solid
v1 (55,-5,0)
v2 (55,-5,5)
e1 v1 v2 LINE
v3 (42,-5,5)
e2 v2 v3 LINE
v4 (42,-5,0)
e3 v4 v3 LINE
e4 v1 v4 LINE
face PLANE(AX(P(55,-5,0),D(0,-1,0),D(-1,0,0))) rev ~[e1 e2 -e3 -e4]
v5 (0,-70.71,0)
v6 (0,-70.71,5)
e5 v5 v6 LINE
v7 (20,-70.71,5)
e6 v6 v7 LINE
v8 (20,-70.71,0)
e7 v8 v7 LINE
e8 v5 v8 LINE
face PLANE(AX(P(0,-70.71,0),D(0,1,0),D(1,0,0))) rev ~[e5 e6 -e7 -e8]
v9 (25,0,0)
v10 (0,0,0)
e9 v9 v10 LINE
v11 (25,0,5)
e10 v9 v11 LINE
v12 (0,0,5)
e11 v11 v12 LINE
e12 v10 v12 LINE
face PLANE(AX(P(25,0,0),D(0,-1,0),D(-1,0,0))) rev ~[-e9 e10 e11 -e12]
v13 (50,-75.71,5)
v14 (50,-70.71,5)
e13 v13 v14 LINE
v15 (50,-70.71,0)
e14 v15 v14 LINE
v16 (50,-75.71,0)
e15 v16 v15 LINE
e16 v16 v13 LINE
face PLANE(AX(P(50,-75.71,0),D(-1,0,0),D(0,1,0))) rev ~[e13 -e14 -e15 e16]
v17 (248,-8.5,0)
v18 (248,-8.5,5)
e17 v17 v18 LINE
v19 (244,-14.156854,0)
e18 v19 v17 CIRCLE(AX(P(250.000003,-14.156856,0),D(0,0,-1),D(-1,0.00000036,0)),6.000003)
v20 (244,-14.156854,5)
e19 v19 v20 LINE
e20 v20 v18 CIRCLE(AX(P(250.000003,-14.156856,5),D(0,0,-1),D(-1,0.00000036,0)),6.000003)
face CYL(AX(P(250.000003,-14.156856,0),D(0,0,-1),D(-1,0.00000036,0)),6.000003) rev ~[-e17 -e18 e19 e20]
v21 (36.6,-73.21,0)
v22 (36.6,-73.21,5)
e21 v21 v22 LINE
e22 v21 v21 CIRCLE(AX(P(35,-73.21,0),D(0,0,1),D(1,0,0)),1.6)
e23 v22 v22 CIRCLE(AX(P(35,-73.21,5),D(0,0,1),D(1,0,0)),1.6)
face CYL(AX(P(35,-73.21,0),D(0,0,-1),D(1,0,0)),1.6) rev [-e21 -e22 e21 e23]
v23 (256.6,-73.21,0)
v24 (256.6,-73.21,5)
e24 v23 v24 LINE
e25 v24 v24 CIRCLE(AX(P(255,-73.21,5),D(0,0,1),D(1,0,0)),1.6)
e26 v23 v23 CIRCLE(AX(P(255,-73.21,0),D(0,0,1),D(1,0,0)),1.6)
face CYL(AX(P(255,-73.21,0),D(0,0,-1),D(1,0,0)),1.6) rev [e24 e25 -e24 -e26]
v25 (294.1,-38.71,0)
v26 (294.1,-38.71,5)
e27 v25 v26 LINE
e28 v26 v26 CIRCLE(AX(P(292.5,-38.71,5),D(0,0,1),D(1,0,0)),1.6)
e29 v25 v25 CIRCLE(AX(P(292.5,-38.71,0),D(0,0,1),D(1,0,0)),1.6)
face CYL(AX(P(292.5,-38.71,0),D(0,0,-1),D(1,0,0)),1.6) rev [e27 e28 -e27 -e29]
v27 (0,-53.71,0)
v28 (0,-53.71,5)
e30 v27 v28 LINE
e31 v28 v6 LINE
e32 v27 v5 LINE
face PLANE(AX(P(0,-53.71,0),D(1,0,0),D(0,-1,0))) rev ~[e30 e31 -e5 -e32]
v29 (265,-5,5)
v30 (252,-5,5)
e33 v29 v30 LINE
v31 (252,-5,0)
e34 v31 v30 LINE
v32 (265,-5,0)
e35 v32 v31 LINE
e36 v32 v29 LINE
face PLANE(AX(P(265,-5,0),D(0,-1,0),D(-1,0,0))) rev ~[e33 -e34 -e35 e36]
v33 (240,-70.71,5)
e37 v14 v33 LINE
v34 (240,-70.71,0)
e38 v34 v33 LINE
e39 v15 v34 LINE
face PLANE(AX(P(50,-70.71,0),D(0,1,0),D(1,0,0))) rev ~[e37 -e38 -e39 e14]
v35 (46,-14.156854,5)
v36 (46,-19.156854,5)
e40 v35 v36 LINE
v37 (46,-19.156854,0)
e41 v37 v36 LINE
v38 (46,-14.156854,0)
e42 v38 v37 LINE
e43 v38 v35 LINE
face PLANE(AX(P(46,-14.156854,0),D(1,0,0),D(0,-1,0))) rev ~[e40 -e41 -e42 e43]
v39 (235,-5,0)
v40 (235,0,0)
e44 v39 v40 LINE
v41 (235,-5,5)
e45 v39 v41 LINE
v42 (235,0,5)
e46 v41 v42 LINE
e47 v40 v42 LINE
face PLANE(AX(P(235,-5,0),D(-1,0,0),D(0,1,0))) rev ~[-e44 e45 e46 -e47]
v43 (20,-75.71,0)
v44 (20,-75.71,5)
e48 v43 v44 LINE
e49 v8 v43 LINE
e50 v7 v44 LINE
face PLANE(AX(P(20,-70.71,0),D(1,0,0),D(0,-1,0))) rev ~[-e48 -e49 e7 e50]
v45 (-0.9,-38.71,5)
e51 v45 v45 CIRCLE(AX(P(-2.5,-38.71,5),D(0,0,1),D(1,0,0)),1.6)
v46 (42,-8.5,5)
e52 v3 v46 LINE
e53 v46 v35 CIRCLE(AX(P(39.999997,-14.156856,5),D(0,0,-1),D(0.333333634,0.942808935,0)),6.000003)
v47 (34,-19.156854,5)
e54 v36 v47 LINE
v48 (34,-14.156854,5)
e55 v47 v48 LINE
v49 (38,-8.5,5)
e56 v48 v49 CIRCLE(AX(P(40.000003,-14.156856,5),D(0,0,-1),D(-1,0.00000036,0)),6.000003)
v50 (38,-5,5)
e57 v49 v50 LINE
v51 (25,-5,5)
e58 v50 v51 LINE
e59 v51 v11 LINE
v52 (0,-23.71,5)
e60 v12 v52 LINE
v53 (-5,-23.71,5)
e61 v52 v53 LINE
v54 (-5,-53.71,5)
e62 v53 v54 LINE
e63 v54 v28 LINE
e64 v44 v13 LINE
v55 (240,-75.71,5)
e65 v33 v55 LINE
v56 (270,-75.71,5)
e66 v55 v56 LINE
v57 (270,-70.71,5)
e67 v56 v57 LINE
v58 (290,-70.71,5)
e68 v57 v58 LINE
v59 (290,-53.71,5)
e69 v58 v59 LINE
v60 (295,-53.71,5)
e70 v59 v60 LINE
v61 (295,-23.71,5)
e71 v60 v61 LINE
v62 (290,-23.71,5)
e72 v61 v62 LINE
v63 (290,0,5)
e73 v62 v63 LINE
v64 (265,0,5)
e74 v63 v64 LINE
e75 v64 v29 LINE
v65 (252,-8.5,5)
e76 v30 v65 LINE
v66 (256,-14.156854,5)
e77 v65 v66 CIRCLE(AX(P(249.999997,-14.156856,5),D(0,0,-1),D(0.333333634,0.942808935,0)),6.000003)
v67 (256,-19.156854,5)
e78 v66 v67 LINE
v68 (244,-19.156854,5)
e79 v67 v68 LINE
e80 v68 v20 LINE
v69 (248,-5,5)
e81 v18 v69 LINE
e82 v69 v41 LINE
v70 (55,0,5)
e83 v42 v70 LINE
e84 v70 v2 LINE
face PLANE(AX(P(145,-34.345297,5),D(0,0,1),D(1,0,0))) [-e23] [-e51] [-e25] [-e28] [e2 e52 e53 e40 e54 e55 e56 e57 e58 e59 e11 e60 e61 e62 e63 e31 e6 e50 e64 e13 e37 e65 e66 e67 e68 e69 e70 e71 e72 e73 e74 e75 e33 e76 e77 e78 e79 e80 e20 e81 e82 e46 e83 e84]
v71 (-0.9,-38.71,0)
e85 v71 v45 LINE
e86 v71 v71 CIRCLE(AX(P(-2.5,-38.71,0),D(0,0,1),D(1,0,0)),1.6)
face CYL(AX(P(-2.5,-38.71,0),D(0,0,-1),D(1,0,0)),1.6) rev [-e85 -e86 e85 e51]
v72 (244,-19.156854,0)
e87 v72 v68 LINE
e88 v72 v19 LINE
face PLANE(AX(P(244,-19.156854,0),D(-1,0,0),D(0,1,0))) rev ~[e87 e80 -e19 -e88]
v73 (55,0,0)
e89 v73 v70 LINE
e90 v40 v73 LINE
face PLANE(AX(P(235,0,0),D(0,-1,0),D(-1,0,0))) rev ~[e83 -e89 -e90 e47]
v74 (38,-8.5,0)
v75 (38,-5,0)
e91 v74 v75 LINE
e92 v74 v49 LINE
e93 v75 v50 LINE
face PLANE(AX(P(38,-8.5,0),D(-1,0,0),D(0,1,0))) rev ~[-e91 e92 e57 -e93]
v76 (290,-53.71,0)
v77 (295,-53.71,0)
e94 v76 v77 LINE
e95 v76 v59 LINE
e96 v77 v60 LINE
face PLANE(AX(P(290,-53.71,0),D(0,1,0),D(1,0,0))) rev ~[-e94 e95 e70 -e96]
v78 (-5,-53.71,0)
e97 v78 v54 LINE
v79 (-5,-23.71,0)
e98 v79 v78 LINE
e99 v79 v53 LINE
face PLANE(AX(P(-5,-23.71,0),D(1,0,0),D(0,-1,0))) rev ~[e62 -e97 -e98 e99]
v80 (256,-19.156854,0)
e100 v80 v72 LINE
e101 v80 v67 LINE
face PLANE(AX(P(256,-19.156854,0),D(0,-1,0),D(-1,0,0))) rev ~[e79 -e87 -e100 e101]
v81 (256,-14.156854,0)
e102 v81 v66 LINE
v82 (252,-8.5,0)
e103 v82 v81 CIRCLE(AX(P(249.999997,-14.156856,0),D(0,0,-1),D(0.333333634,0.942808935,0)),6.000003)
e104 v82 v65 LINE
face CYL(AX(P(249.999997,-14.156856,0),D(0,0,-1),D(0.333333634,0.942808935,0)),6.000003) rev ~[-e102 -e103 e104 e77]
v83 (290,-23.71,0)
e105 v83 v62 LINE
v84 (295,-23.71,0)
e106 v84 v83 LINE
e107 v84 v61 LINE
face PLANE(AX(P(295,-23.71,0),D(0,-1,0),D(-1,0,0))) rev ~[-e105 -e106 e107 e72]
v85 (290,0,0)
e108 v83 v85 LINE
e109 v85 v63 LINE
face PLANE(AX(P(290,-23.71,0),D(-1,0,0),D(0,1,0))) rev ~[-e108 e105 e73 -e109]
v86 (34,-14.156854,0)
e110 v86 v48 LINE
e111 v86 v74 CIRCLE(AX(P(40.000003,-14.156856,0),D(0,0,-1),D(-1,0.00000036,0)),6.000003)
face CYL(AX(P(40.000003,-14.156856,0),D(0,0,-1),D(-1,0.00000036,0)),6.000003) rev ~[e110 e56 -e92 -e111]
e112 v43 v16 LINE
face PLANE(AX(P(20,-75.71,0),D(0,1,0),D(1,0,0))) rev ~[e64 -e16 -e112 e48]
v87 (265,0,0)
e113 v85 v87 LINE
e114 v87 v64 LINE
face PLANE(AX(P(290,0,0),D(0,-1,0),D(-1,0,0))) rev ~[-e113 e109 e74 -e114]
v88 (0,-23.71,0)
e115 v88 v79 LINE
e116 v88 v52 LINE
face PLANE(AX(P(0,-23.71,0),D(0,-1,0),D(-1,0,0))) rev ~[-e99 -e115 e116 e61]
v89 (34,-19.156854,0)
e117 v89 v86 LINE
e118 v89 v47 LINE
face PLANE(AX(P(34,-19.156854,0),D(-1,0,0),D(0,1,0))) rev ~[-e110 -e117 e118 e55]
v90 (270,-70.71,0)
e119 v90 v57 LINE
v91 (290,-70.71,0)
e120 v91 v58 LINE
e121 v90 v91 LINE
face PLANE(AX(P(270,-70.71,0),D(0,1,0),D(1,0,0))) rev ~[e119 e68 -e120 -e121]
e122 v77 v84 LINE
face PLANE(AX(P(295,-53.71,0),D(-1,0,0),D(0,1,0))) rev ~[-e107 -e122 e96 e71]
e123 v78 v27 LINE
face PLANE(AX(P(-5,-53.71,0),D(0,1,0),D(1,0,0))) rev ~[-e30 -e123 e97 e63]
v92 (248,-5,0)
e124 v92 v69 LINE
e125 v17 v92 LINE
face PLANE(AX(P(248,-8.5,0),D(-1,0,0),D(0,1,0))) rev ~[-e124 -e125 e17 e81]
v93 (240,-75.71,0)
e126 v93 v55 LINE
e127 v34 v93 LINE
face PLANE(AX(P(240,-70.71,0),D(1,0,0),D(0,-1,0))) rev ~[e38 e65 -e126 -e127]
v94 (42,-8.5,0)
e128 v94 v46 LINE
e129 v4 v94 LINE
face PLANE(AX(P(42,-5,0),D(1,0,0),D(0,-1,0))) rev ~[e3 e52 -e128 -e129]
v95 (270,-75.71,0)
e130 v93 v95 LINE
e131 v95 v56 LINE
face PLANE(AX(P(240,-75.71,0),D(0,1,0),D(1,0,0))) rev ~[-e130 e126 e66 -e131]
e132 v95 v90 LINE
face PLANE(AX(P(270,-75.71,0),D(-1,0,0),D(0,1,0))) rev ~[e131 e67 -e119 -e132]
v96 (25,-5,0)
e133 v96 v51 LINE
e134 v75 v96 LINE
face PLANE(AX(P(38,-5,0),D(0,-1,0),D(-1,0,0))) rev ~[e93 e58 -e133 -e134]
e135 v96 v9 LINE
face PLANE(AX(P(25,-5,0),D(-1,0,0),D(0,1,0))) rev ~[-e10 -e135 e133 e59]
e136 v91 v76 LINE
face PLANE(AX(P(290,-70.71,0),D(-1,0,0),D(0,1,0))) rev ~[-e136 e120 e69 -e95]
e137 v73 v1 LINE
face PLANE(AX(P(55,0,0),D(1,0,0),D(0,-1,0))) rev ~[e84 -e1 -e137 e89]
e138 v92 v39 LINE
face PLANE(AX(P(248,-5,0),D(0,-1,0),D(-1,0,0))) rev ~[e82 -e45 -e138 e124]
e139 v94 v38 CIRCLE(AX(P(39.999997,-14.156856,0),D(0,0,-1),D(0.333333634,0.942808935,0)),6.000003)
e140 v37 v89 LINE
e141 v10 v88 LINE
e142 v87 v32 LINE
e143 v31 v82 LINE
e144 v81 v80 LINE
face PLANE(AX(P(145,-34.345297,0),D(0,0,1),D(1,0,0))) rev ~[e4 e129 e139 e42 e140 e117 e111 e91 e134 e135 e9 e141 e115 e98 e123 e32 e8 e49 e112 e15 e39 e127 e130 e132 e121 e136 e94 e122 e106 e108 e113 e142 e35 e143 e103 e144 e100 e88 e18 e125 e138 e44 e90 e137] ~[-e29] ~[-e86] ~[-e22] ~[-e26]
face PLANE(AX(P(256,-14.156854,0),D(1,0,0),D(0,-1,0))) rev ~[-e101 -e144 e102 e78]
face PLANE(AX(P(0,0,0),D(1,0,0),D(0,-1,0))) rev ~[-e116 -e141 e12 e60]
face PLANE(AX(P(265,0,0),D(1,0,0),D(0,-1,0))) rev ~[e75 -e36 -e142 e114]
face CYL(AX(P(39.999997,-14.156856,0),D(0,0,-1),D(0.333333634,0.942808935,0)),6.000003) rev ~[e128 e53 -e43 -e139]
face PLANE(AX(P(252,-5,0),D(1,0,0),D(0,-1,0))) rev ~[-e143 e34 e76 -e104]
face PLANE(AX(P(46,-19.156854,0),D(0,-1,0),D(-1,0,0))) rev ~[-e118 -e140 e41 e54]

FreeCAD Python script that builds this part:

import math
import FreeCAD as App
import Part
import Sketcher

V = App.Vector
Q = App.Units.Quantity

doc = App.newDocument("Part")
params = doc.addObject("Spreadsheet::Sheet", "Params")
for row, (alias, value) in enumerate([
    ("sketch1_diameter", "3.2 mm"),
    ("sketch1_width", "25 mm"),
    ("sketch1_width2", "5 mm"),
    ("sketch1_width3", "20 mm"),
    ("sketch1_width4", "30 mm"),
    ("pad1_length", "5 mm"),
], start=1):
    params.set(f"A{row}", alias)
    params.set(f"B{row}", "=" + value)
    params.setAlias(f"B{row}", alias)

body = doc.addObject("PartDesign::Body", "Body")

sketch1 = doc.addObject("Sketcher::SketchObject", "Sketch")
body.addObject(sketch1)
sketch1.AttachmentSupport = (doc.XY_Plane, [""])
sketch1.MapMode = "FlatFace"
sketch1.addGeometry([
    Part.LineSegment(V(25, 0, 0), V(0, 0, 0)),
    Part.LineSegment(V(0, 0, 0), V(0, -23.71, 0)),
    Part.LineSegment(V(0, -23.71, 0), V(-5, -23.71, 0)),
    Part.LineSegment(V(-5, -23.71, 0), V(-5, -53.71, 0)),
    Part.LineSegment(V(-5, -53.71, 0), V(0, -53.71, 0)),
    Part.LineSegment(V(0, -53.71, 0), V(0, -70.71, 0)),
    Part.LineSegment(V(0, -70.71, 0), V(20, -70.71, 0)),
    Part.LineSegment(V(20, -70.71, 0), V(20, -75.71, 0)),
    Part.LineSegment(V(20, -75.71, 0), V(50, -75.71, 0)),
    Part.LineSegment(V(50, -75.71, 0), V(50, -70.71, 0)),
    Part.LineSegment(V(50, -70.71, 0), V(240, -70.71, 0)),
    Part.LineSegment(V(240, -70.71, 0), V(240, -75.71, 0)),
    Part.LineSegment(V(240, -75.71, 0), V(270, -75.71, 0)),
    Part.LineSegment(V(270, -75.71, 0), V(270, -70.71, 0)),
    Part.LineSegment(V(270, -70.71, 0), V(290, -70.71, 0)),
    Part.LineSegment(V(290, -70.71, 0), V(290, -53.71, 0)),
    Part.LineSegment(V(290, -53.71, 0), V(295, -53.71, 0)),
    Part.LineSegment(V(295, -53.71, 0), V(295, -23.71, 0)),
    Part.LineSegment(V(295, -23.71, 0), V(290, -23.71, 0)),
    Part.LineSegment(V(290, -23.71, 0), V(290, 0, 0)),
    Part.LineSegment(V(290, 0, 0), V(265, 0, 0)),
    Part.LineSegment(V(265, 0, 0), V(265, -5, 0)),
    Part.LineSegment(V(265, -5, 0), V(252, -5, 0)),
    Part.LineSegment(V(252, -5, 0), V(252, -8.5, 0)),
    Part.ArcOfCircle(Part.Circle(V(249.999997, -14.156856, 0), V(0, 0, 1), 6.000003), math.radians(0.000021), math.radians(70.528761)),
    Part.LineSegment(V(256, -14.156854, 0), V(256, -19.156854, 0)),
    Part.LineSegment(V(256, -19.156854, 0), V(244, -19.156854, 0)),
    Part.LineSegment(V(244, -19.156854, 0), V(244, -14.156854, 0)),
    Part.ArcOfCircle(Part.Circle(V(250.000003, -14.156856, 0), V(0, 0, 1), 6.000003), math.radians(109.471239), math.radians(179.999979)),
    Part.LineSegment(V(248, -8.5, 0), V(248, -5, 0)),
    Part.LineSegment(V(248, -5, 0), V(235, -5, 0)),
    Part.LineSegment(V(235, -5, 0), V(235, 0, 0)),
    Part.LineSegment(V(235, 0, 0), V(55, 0, 0)),
    Part.LineSegment(V(55, 0, 0), V(55, -5, 0)),
    Part.LineSegment(V(55, -5, 0), V(42, -5, 0)),
    Part.LineSegment(V(42, -5, 0), V(42, -8.5, 0)),
    Part.ArcOfCircle(Part.Circle(V(39.999997, -14.156856, 0), V(0, 0, 1), 6.000003), math.radians(0.000021), math.radians(70.528761)),
    Part.LineSegment(V(46, -14.156854, 0), V(46, -19.156854, 0)),
    Part.LineSegment(V(46, -19.156854, 0), V(34, -19.156854, 0)),
    Part.LineSegment(V(34, -19.156854, 0), V(34, -14.156854, 0)),
    Part.ArcOfCircle(Part.Circle(V(40.000003, -14.156856, 0), V(0, 0, 1), 6.000003), math.radians(109.471239), math.radians(179.999979)),
    Part.LineSegment(V(38, -8.5, 0), V(38, -5, 0)),
    Part.LineSegment(V(38, -5, 0), V(25, -5, 0)),
    Part.LineSegment(V(25, -5, 0), V(25, 0, 0)),
    Part.Circle(V(35, -73.21, 0), V(0, 0, 1), 1.6),
    Part.Circle(V(255, -73.21, 0), V(0, 0, 1), 1.6),
    Part.Circle(V(-2.5, -38.71, 0), V(0, 0, 1), 1.6),
    Part.Circle(V(292.5, -38.71, 0), V(0, 0, 1), 1.6),
], False)
sketch1.addConstraint([
    Sketcher.Constraint("Coincident", 0, 2, 1, 1),
    Sketcher.Constraint("Coincident", 1, 2, 2, 1),
    Sketcher.Constraint("Coincident", 2, 2, 3, 1),
    Sketcher.Constraint("Coincident", 3, 2, 4, 1),
    Sketcher.Constraint("Coincident", 4, 2, 5, 1),
    Sketcher.Constraint("Coincident", 5, 2, 6, 1),
    Sketcher.Constraint("Coincident", 6, 2, 7, 1),
    Sketcher.Constraint("Coincident", 7, 2, 8, 1),
    Sketcher.Constraint("Coincident", 8, 2, 9, 1),
    Sketcher.Constraint("Coincident", 9, 2, 10, 1),
    Sketcher.Constraint("Coincident", 10, 2, 11, 1),
    Sketcher.Constraint("Coincident", 11, 2, 12, 1),
    Sketcher.Constraint("Coincident", 12, 2, 13, 1),
    Sketcher.Constraint("Coincident", 13, 2, 14, 1),
    Sketcher.Constraint("Coincident", 14, 2, 15, 1),
    Sketcher.Constraint("Coincident", 15, 2, 16, 1),
    Sketcher.Constraint("Coincident", 16, 2, 17, 1),
    Sketcher.Constraint("Coincident", 17, 2, 18, 1),
    Sketcher.Constraint("Coincident", 18, 2, 19, 1),
    Sketcher.Constraint("Coincident", 19, 2, 20, 1),
    Sketcher.Constraint("Coincident", 20, 2, 21, 1),
    Sketcher.Constraint("Coincident", 21, 2, 22, 1),
    Sketcher.Constraint("Coincident", 22, 2, 23, 1),
    Sketcher.Constraint("Coincident", 23, 2, 24, 2),
    Sketcher.Constraint("Tangent", 24, 1, 25, 1),
    Sketcher.Constraint("Coincident", 25, 2, 26, 1),
    Sketcher.Constraint("Coincident", 26, 2, 27, 1),
    Sketcher.Constraint("Tangent", 27, 2, 28, 2),
    Sketcher.Constraint("Coincident", 28, 1, 29, 1),
    Sketcher.Constraint("Coincident", 29, 2, 30, 1),
    Sketcher.Constraint("Coincident", 30, 2, 31, 1),
    Sketcher.Constraint("Coincident", 31, 2, 32, 1),
    Sketcher.Constraint("Coincident", 32, 2, 33, 1),
    Sketcher.Constraint("Coincident", 33, 2, 34, 1),
    Sketcher.Constraint("Coincident", 34, 2, 35, 1),
    Sketcher.Constraint("Coincident", 35, 2, 36, 2),
    Sketcher.Constraint("Tangent", 36, 1, 37, 1),
    Sketcher.Constraint("Coincident", 37, 2, 38, 1),
    Sketcher.Constraint("Coincident", 38, 2, 39, 1),
    Sketcher.Constraint("Tangent", 39, 2, 40, 2),
    Sketcher.Constraint("Coincident", 40, 1, 41, 1),
    Sketcher.Constraint("Coincident", 41, 2, 42, 1),
    Sketcher.Constraint("Coincident", 42, 2, 43, 1),
    Sketcher.Constraint("Coincident", 43, 2, 0, 1),
    Sketcher.Constraint("Horizontal", 0),
    Sketcher.Constraint("Vertical", 1),
    Sketcher.Constraint("Horizontal", 2),
    Sketcher.Constraint("Vertical", 3),
    Sketcher.Constraint("Horizontal", 4),
    Sketcher.Constraint("Vertical", 5),
    Sketcher.Constraint("Horizontal", 6),
    Sketcher.Constraint("Vertical", 7),
    Sketcher.Constraint("Horizontal", 8),
    Sketcher.Constraint("Vertical", 9),
    Sketcher.Constraint("Horizontal", 10),
    Sketcher.Constraint("Vertical", 11),
    Sketcher.Constraint("Horizontal", 12),
    Sketcher.Constraint("Vertical", 13),
    Sketcher.Constraint("Horizontal", 14),
    Sketcher.Constraint("Vertical", 15),
    Sketcher.Constraint("Horizontal", 16),
    Sketcher.Constraint("Vertical", 17),
    Sketcher.Constraint("Horizontal", 18),
    Sketcher.Constraint("Vertical", 19),
    Sketcher.Constraint("Horizontal", 20),
    Sketcher.Constraint("Vertical", 21),
    Sketcher.Constraint("Horizontal", 22),
    Sketcher.Constraint("Vertical", 23),
    Sketcher.Constraint("Vertical", 25),
    Sketcher.Constraint("Horizontal", 26),
    Sketcher.Constraint("Vertical", 27),
    Sketcher.Constraint("Vertical", 29),
    Sketcher.Constraint("Horizontal", 30),
    Sketcher.Constraint("Vertical", 31),
    Sketcher.Constraint("Horizontal", 32),
    Sketcher.Constraint("Vertical", 33),
    Sketcher.Constraint("Horizontal", 34),
    Sketcher.Constraint("Vertical", 35),
    Sketcher.Constraint("Vertical", 37),
    Sketcher.Constraint("Horizontal", 38),
    Sketcher.Constraint("Vertical", 39),
    Sketcher.Constraint("Vertical", 41),
    Sketcher.Constraint("Horizontal", 42),
    Sketcher.Constraint("Vertical", 43),
    Sketcher.Constraint("Coincident", 0, 2, -1, 1),
    Sketcher.Constraint("Coincident", 28, 3, 24, 3),
    Sketcher.Constraint("Coincident", 40, 3, 36, 3),
    Sketcher.Constraint("Equal", 24, 28),
    Sketcher.Constraint("Equal", 28, 36),
    Sketcher.Constraint("Equal", 36, 40),
    Sketcher.Constraint("Equal", 44, 45),
    Sketcher.Constraint("Equal", 45, 46),
    Sketcher.Constraint("Equal", 46, 47),
    Sketcher.Constraint("PointOnObject", 4, 2, -2),
    Sketcher.Constraint("PointOnObject", 19, 2, -1),
    Sketcher.Constraint("PointOnObject", 31, 2, -1),
    Sketcher.Constraint("Horizontal", 28, 3, 36, 3),
    Sketcher.Constraint("Horizontal", 44, 3, 45, 3),
    Sketcher.Constraint("Horizontal", 46, 3, 47, 3),
    Sketcher.Constraint("Horizontal", 6, 2, 9, 2),
    Sketcher.Constraint("Horizontal", 8, 2, 11, 2),
    Sketcher.Constraint("Horizontal", 10, 2, 13, 2),
    Sketcher.Constraint("Horizontal", 4, 2, 15, 2),
    Sketcher.Constraint("Horizontal", 2, 2, 17, 2),
    Sketcher.Constraint("Horizontal", 23, 2, 28, 1),
    Sketcher.Constraint("Horizontal", 22, 2, 29, 2),
    Sketcher.Constraint("Horizontal", 30, 2, 33, 2),
    Sketcher.Constraint("Horizontal", 28, 1, 35, 2),
    Sketcher.Constraint("Horizontal", 26, 2, 37, 2),
    Sketcher.Constraint("Horizontal", 35, 2, 40, 1),
    Sketcher.Constraint("Horizontal", 34, 2, 41, 2),
    Sketcher.Constraint("Vertical", 15, 2, 18, 2),
    Sketcher.Constraint("Equal", 8, 12),
    Sketcher.Constraint("Equal", 6, 14),
    Sketcher.Constraint("Equal", 4, 16),
    Sketcher.Constraint("Equal", 0, 20),
    Sketcher.Constraint("Equal", 22, 30),
    Sketcher.Constraint("Equal", 30, 34),
    Sketcher.Constraint("Equal", 34, 42),
    Sketcher.Constraint("Equal", 12, 3),
    Sketcher.Constraint("Equal", 18, 7),
    Sketcher.Constraint("Equal", 13, 21),
    Sketcher.Constraint("Equal", 21, 25),
    Sketcher.Constraint("Diameter", 44, Q("3.2 mm")),
    Sketcher.Constraint("DistanceX", 0, 2, 0, 1, Q("25 mm")),
    Sketcher.Constraint("DistanceX", 2, 2, 2, 1, Q("5 mm")),
    Sketcher.Constraint("DistanceX", 6, 1, 6, 2, Q("20 mm")),
    Sketcher.Constraint("DistanceX", 8, 1, 8, 2, Q("30 mm")),
    Sketcher.Constraint("DistanceX", 10, 1, 10, 2, Q("190 mm")),
    Sketcher.Constraint("DistanceX", 22, 2, 22, 1, Q("13 mm")),
    Sketcher.Constraint("DistanceX", 26, 2, 26, 1, Q("12 mm")),
    Sketcher.Constraint("DistanceX", 32, 2, 32, 1, Q("180 mm")),
    Sketcher.Constraint("DistanceY", 5, 2, 5, 1, Q("17 mm")),
    Sketcher.Constraint("DistanceY", 23, 2, 23, 1, Q("3.5 mm")),
    Sketcher.Constraint("DistanceX", -1, 1, 44, 3, Q("35 mm")),
    Sketcher.Constraint("DistanceX", -1, 1, 45, 3, Q("255 mm")),
    Sketcher.Constraint("DistanceY", 46, 3, 1, 2, Q("15 mm")),
    Sketcher.Constraint("DistanceY", 1, 2, 1, 1, Q("23.71 mm")),
    Sketcher.Constraint("DistanceX", 46, 3, -1, 1, Q("2.5 mm")),
    Sketcher.Constraint("DistanceX", -1, 1, 47, 3, Q("292.5 mm")),
    Sketcher.Constraint("DistanceY", 44, 3, 46, 3, Q("34.5 mm")),
])
sketch1.setExpression("Constraints[123]", "Params.sketch1_diameter")
sketch1.setExpression("Constraints[124]", "Params.sketch1_width")
sketch1.setExpression("Constraints[125]", "Params.sketch1_width2")
sketch1.setExpression("Constraints[126]", "Params.sketch1_width3")
sketch1.setExpression("Constraints[127]", "Params.sketch1_width4")
pad1 = doc.addObject("PartDesign::Pad", "Pad")
body.addObject(pad1)
pad1.Profile = sketch1
pad1.setExpression("Length", "Params.pad1_length")

doc.recompute()
